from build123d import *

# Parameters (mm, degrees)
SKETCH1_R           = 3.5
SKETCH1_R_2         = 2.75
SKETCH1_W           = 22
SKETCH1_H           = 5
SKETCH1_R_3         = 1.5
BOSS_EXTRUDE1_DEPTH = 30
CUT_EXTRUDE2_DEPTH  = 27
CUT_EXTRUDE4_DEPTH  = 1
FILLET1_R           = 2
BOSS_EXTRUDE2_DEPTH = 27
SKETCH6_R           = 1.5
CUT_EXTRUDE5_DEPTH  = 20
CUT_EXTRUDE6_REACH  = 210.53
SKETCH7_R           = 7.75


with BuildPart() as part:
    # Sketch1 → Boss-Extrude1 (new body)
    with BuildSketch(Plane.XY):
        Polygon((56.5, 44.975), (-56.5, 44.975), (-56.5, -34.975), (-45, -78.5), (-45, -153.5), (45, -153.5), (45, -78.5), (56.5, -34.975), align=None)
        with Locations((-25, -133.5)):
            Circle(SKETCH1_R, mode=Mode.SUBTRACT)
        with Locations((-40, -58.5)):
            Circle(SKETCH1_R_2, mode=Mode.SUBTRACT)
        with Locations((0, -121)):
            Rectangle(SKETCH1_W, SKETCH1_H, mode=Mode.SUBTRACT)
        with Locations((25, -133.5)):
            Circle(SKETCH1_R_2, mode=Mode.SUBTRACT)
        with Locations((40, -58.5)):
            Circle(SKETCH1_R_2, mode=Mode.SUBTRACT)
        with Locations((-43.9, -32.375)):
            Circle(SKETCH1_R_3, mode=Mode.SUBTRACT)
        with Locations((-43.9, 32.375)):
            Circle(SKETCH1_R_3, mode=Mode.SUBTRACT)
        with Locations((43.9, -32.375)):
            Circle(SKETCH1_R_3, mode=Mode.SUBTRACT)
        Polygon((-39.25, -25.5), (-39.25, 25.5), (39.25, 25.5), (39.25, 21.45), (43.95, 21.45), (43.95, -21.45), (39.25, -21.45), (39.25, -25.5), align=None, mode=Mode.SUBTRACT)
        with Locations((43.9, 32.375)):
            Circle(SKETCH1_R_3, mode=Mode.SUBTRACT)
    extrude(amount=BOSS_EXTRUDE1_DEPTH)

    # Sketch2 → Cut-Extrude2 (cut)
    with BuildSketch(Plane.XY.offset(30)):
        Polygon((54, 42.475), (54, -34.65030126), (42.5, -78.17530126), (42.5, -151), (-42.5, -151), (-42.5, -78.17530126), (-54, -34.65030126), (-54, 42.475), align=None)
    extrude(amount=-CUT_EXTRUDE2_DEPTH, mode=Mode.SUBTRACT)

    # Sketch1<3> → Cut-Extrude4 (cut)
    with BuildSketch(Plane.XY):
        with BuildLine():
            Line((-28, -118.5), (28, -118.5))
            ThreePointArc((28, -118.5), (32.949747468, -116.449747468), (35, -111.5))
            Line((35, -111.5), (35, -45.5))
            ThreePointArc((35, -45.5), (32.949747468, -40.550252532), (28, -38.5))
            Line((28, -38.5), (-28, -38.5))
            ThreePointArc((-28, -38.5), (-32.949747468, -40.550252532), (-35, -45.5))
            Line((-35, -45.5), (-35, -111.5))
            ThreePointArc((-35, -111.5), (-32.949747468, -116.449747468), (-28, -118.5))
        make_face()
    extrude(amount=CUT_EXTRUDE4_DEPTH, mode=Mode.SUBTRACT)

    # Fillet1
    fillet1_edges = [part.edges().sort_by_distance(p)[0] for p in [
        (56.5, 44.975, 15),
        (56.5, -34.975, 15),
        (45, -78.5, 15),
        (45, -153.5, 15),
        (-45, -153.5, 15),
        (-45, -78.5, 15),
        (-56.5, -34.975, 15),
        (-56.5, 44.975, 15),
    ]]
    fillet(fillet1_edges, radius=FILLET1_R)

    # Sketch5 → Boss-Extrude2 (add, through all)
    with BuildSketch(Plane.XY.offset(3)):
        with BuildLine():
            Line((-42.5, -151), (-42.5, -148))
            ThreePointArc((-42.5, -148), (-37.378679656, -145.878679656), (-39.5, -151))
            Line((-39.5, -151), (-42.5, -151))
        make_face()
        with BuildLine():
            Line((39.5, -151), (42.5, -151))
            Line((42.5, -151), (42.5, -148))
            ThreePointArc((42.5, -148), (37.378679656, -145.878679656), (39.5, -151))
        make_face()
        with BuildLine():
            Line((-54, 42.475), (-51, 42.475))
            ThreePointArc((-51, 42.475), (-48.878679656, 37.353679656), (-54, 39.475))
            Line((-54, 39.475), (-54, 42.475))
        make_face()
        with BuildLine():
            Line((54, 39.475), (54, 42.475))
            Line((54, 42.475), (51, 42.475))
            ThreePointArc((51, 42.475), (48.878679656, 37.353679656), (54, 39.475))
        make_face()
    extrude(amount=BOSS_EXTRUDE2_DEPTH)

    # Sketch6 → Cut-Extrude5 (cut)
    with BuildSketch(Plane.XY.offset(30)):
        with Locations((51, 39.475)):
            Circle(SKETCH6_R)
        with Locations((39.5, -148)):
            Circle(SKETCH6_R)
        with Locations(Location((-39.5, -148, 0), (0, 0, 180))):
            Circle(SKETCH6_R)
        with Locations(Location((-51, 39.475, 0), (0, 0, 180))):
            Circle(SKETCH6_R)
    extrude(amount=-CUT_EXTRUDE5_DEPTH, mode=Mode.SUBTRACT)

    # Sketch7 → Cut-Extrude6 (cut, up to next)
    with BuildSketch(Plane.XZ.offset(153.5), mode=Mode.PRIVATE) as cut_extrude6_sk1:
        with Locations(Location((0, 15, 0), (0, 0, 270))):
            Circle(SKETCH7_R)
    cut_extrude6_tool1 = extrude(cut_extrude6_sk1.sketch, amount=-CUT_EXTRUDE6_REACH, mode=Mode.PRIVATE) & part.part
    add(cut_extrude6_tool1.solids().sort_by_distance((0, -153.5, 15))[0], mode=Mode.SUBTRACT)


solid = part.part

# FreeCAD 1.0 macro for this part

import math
import FreeCAD as App
import Part
import Sketcher


def edges_at(feature, points):
    """Names of the edges that pass closest to the given points."""
    edges = feature.Shape.Edges
    near = lambda p: min(range(len(edges)), key=lambda i: edges[i].distToShape(Part.Vertex(*p))[0])
    return sorted({f"Edge{near(p) + 1}" for p in points})

doc = App.newDocument("Part")
body = doc.addObject("PartDesign::Body", "Body")

sketch1 = body.newObject("Sketcher::SketchObject", "Sketch")
sketch1.AttachmentSupport = (doc.getObject("XY_Plane"), [""])
sketch1.MapMode = "FlatFace"
sketch1.addGeometry(Part.LineSegment(App.Vector(56.5, 45, 0), App.Vector(-56.5, 45, 0)), False)
sketch1.addGeometry(Part.LineSegment(App.Vector(-56.5, 45, 0), App.Vector(-56.5, -35, 0)), False)
sketch1.addGeometry(Part.LineSegment(App.Vector(-56.5, -35, 0), App.Vector(-45, -78.5, 0)), False)
sketch1.addGeometry(Part.LineSegment(App.Vector(-45, -78.5, 0), App.Vector(-45, -153.5, 0)), False)
sketch1.addGeometry(Part.LineSegment(App.Vector(-45, -153.5, 0), App.Vector(45, -153.5, 0)), False)
sketch1.addGeometry(Part.LineSegment(App.Vector(45, -153.5, 0), App.Vector(45, -78.5, 0)), False)
sketch1.addGeometry(Part.LineSegment(App.Vector(45, -78.5, 0), App.Vector(56.5, -35, 0)), False)
sketch1.addGeometry(Part.LineSegment(App.Vector(56.5, -35, 0), App.Vector(56.5, 45, 0)), False)
sketch1.addGeometry(Part.Circle(App.Vector(-25, -133.5, 0), App.Vector(0, 0, 1), 3.5), False)
sketch1.addGeometry(Part.Circle(App.Vector(-40, -58.5, 0), App.Vector(0, 0, 1), 2.8), False)
sketch1.addGeometry(Part.LineSegment(App.Vector(11, -123.5, 0), App.Vector(-11, -123.5, 0)), False)
sketch1.addGeometry(Part.LineSegment(App.Vector(-11, -123.5, 0), App.Vector(-11, -118.5, 0)), False)
sketch1.addGeometry(Part.LineSegment(App.Vector(-11, -118.5, 0), App.Vector(11, -118.5, 0)), False)
sketch1.addGeometry(Part.LineSegment(App.Vector(11, -118.5, 0), App.Vector(11, -123.5, 0)), False)
sketch1.addGeometry(Part.Circle(App.Vector(25, -133.5, 0), App.Vector(0, 0, 1), 2.8), False)
sketch1.addGeometry(Part.Circle(App.Vector(40, -58.5, 0), App.Vector(0, 0, 1), 2.8), False)
sketch1.addGeometry(Part.Circle(App.Vector(-43.9, -32.4, 0), App.Vector(0, 0, 1), 1.5), False)
sketch1.addGeometry(Part.Circle(App.Vector(-43.9, 32.4, 0), App.Vector(0, 0, 1), 1.5), False)
sketch1.addGeometry(Part.Circle(App.Vector(43.9, -32.4, 0), App.Vector(0, 0, 1), 1.5), False)
sketch1.addGeometry(Part.LineSegment(App.Vector(39.2, -25.5, 0), App.Vector(-39.2, -25.5, 0)), False)
sketch1.addGeometry(Part.LineSegment(App.Vector(-39.2, -25.5, 0), App.Vector(-39.2, 25.5, 0)), False)
sketch1.addGeometry(Part.LineSegment(App.Vector(-39.2, 25.5, 0), App.Vector(39.2, 25.5, 0)), False)
sketch1.addGeometry(Part.LineSegment(App.Vector(39.2, 25.5, 0), App.Vector(39.2, 21.4, 0)), False)
sketch1.addGeometry(Part.LineSegment(App.Vector(39.2, 21.4, 0), App.Vector(44, 21.4, 0)), False)
sketch1.addGeometry(Part.LineSegment(App.Vector(44, 21.4, 0), App.Vector(44, -21.4, 0)), False)
sketch1.addGeometry(Part.LineSegment(App.Vector(44, -21.4, 0), App.Vector(39.2, -21.4, 0)), False)
sketch1.addGeometry(Part.LineSegment(App.Vector(39.2, -21.4, 0), App.Vector(39.2, -25.5, 0)), False)
sketch1.addGeometry(Part.Circle(App.Vector(43.9, 32.4, 0), App.Vector(0, 0, 1), 1.5), False)
sketch1.addConstraint(Sketcher.Constraint("Coincident", 0, 2, 1, 1))
sketch1.addConstraint(Sketcher.Constraint("Coincident", 1, 2, 2, 1))
sketch1.addConstraint(Sketcher.Constraint("Coincident", 2, 2, 3, 1))
sketch1.addConstraint(Sketcher.Constraint("Coincident", 3, 2, 4, 1))
sketch1.addConstraint(Sketcher.Constraint("Coincident", 4, 2, 5, 1))
sketch1.addConstraint(Sketcher.Constraint("Coincident", 5, 2, 6, 1))
sketch1.addConstraint(Sketcher.Constraint("Coincident", 6, 2, 7, 1))
sketch1.addConstraint(Sketcher.Constraint("Coincident", 7, 2, 0, 1))
sketch1.addConstraint(Sketcher.Constraint("Coincident", 10, 2, 11, 1))
sketch1.addConstraint(Sketcher.Constraint("Coincident", 11, 2, 12, 1))
sketch1.addConstraint(Sketcher.Constraint("Coincident", 12, 2, 13, 1))
sketch1.addConstraint(Sketcher.Constraint("Coincident", 13, 2, 10, 1))
sketch1.addConstraint(Sketcher.Constraint("Coincident", 19, 2, 20, 1))
sketch1.addConstraint(Sketcher.Constraint("Coincident", 20, 2, 21, 1))
sketch1.addConstraint(Sketcher.Constraint("Coincident", 21, 2, 22, 1))
sketch1.addConstraint(Sketcher.Constraint("Coincident", 22, 2, 23, 1))
sketch1.addConstraint(Sketcher.Constraint("Coincident", 23, 2, 24, 1))
sketch1.addConstraint(Sketcher.Constraint("Coincident", 24, 2, 25, 1))
sketch1.addConstraint(Sketcher.Constraint("Coincident", 25, 2, 26, 1))
sketch1.addConstraint(Sketcher.Constraint("Coincident", 26, 2, 19, 1))
sketch1.addConstraint(Sketcher.Constraint("Horizontal", 0))
sketch1.addConstraint(Sketcher.Constraint("Vertical", 1))
sketch1.addConstraint(Sketcher.Constraint("Vertical", 3))
sketch1.addConstraint(Sketcher.Constraint("Horizontal", 4))
sketch1.addConstraint(Sketcher.Constraint("Vertical", 5))
sketch1.addConstraint(Sketcher.Constraint("Vertical", 7))
sketch1.addConstraint(Sketcher.Constraint("Horizontal", 10))
sketch1.addConstraint(Sketcher.Constraint("Vertical", 11))
sketch1.addConstraint(Sketcher.Constraint("Horizontal", 12))
sketch1.addConstraint(Sketcher.Constraint("Vertical", 13))
sketch1.addConstraint(Sketcher.Constraint("Horizontal", 19))
sketch1.addConstraint(Sketcher.Constraint("Vertical", 20))
sketch1.addConstraint(Sketcher.Constraint("Horizontal", 21))
sketch1.addConstraint(Sketcher.Constraint("Vertical", 22))
sketch1.addConstraint(Sketcher.Constraint("Horizontal", 23))
sketch1.addConstraint(Sketcher.Constraint("Vertical", 24))
sketch1.addConstraint(Sketcher.Constraint("Horizontal", 25))
sketch1.addConstraint(Sketcher.Constraint("Vertical", 26))
sketch1.addConstraint(Sketcher.Constraint("Equal", 9, 14))
sketch1.addConstraint(Sketcher.Constraint("Equal", 14, 15))
sketch1.addConstraint(Sketcher.Constraint("Equal", 16, 17))
sketch1.addConstraint(Sketcher.Constraint("Equal", 17, 18))
sketch1.addConstraint(Sketcher.Constraint("Equal", 18, 27))
sketch1.addConstraint(Sketcher.Constraint("Symmetric", 17, 3, 18, 3, -1, 1))
sketch1.addConstraint(Sketcher.Constraint("Symmetric", 16, 3, 27, 3, -1, 1))
sketch1.addConstraint(Sketcher.Constraint("Symmetric", 19, 2, 21, 2, -1, 1))
sketch1.addConstraint(Sketcher.Constraint("Symmetric", 8, 3, 14, 3, -2))
sketch1.addConstraint(Sketcher.Constraint("Symmetric", 9, 3, 15, 3, -2))
sketch1.addConstraint(Sketcher.Constraint("Symmetric", 16, 3, 18, 3, -2))
sketch1.addConstraint(Sketcher.Constraint("Symmetric", 2, 2, 5, 2, -2))
sketch1.addConstraint(Sketcher.Constraint("Symmetric", 1, 2, 6, 2, -2))
sketch1.addConstraint(Sketcher.Constraint("Symmetric", 22, 2, 25, 2, -1))
sketch1.addConstraint(Sketcher.Constraint("Diameter", 8, 7.0))
sketch1.addConstraint(Sketcher.Constraint("Diameter", 16, 3.0))
sketch1.addConstraint(Sketcher.Constraint("Diameter", 9, 5.5))
sketch1.addConstraint(Sketcher.Constraint("DistanceX", 0, 2, 0, 1, 113.0))
sketch1.addConstraint(Sketcher.Constraint("DistanceX", 4, 1, 4, 2, 90.0))
sketch1.addConstraint(Sketcher.Constraint("DistanceX", 10, 2, 10, 1, 22.0))
sketch1.addConstraint(Sketcher.Constraint("DistanceY", 3, 2, 3, 1, 75.0))
sketch1.addConstraint(Sketcher.Constraint("DistanceY", 11, 1, 11, 2, 5.0))
sketch1.addConstraint(Sketcher.Constraint("DistanceY", 20, 1, 20, 2, 51.0))
sketch1.addConstraint(Sketcher.Constraint("DistanceX", 19, 2, 19, 1, 78.5))
sketch1.addConstraint(Sketcher.Constraint("DistanceX", 23, 1, 23, 2, 4.7))
sketch1.addConstraint(Sketcher.Constraint("DistanceY", 24, 2, 24, 1, 42.9))
sketch1.addConstraint(Sketcher.Constraint("DistanceX", 8, 3, -1, 1, 25.0))
sketch1.addConstraint(Sketcher.Constraint("DistanceX", 9, 3, -1, 1, 40.0))
sketch1.addConstraint(Sketcher.Constraint("DistanceX", 10, 2, -1, 1, 11.0))
sketch1.addConstraint(Sketcher.Constraint("DistanceY", 8, 3, 9, 3, 75.0))
sketch1.addConstraint(Sketcher.Constraint("DistanceY", 2, 2, 9, 3, 20.0))
sketch1.addConstraint(Sketcher.Constraint("DistanceY", 8, 3, 10, 2, 10.0))
sketch1.addConstraint(Sketcher.Constraint("DistanceY", 9, 3, 19, 2, 33.0))
sketch1.addConstraint(Sketcher.Constraint("DistanceY", 1, 2, 1, 1, 79.95))
sketch1.addConstraint(Sketcher.Constraint("DistanceX", 16, 3, -1, 1, 43.9))
sketch1.addConstraint(Sketcher.Constraint("DistanceY", 17, 3, 0, 2, 12.6))
sketch1.addConstraint(Sketcher.Constraint("DistanceY", 1, 2, 16, 3, 2.6))
pad1 = body.newObject("PartDesign::Pad", "Pad")
pad1.Profile = sketch1
pad1.Length = 30

sketch2 = body.newObject("Sketcher::SketchObject", "Sketch001")
sketch2.AttachmentSupport = (doc.getObject("XY_Plane"), [""])
sketch2.MapMode = "FlatFace"
sketch2.AttachmentOffset = App.Placement(App.Vector(0, 0, 30), App.Rotation())
sketch2.addGeometry(Part.LineSegment(App.Vector(54, -35, 0), App.Vector(54, 42, 0)), False)
sketch2.addGeometry(Part.LineSegment(App.Vector(54, 42, 0), App.Vector(-54, 42, 0)), False)
sketch2.addGeometry(Part.LineSegment(App.Vector(-54, 42, 0), App.Vector(-54, -35, 0)), False)
sketch2.addGeometry(Part.LineSegment(App.Vector(-54, -35, 0), App.Vector(-42, -78, 0)), False)
sketch2.addGeometry(Part.LineSegment(App.Vector(-42, -78, 0), App.Vector(-42, -151, 0)), False)
sketch2.addGeometry(Part.LineSegment(App.Vector(-42, -151, 0), App.Vector(42, -151, 0)), False)
sketch2.addGeometry(Part.LineSegment(App.Vector(42, -151, 0), App.Vector(42, -78, 0)), False)
sketch2.addGeometry(Part.LineSegment(App.Vector(42, -78, 0), App.Vector(54, -35, 0)), False)
sketch2.addConstraint(Sketcher.Constraint("Coincident", 0, 2, 1, 1))
sketch2.addConstraint(Sketcher.Constraint("Coincident", 1, 2, 2, 1))
sketch2.addConstraint(Sketcher.Constraint("Coincident", 2, 2, 3, 1))
sketch2.addConstraint(Sketcher.Constraint("Coincident", 3, 2, 4, 1))
sketch2.addConstraint(Sketcher.Constraint("Coincident", 4, 2, 5, 1))
sketch2.addConstraint(Sketcher.Constraint("Coincident", 5, 2, 6, 1))
sketch2.addConstraint(Sketcher.Constraint("Coincident", 6, 2, 7, 1))
sketch2.addConstraint(Sketcher.Constraint("Coincident", 7, 2, 0, 1))
sketch2.addConstraint(Sketcher.Constraint("Vertical", 0))
sketch2.addConstraint(Sketcher.Constraint("Horizontal", 1))
sketch2.addConstraint(Sketcher.Constraint("Vertical", 2))
sketch2.addConstraint(Sketcher.Constraint("Vertical", 4))
sketch2.addConstraint(Sketcher.Constraint("Horizontal", 5))
sketch2.addConstraint(Sketcher.Constraint("Vertical", 6))
sketch2.addConstraint(Sketcher.Constraint("Symmetric", 3, 2, 6, 2, -2))
sketch2.addConstraint(Sketcher.Constraint("Symmetric", 2, 2, 7, 2, -2))
sketch2.addConstraint(Sketcher.Constraint("DistanceX", 1, 2, 1, 1, 108.0))
sketch2.addConstraint(Sketcher.Constraint("DistanceX", 5, 1, 5, 2, 85.0))
sketch2.addConstraint(Sketcher.Constraint("DistanceY", 4, 2, -1, 1, 151.0))
sketch2.addConstraint(Sketcher.Constraint("DistanceY", 0, 1, 0, 2, 77.125301))
sketch2.addConstraint(Sketcher.Constraint("DistanceY", 4, 2, 4, 1, 72.824699))
sketch2.addConstraint(Sketcher.Constraint("DistanceY", -1, 1, 0, 2, 42.475))
pocket1 = body.newObject("PartDesign::Pocket", "Pocket")
pocket1.Profile = sketch2
pocket1.Length = 27

sketch3 = body.newObject("Sketcher::SketchObject", "Sketch002")
sketch3.AttachmentSupport = (doc.getObject("XY_Plane"), [""])
sketch3.MapMode = "FlatFace"
sketch3.addGeometry(Part.LineSegment(App.Vector(-28, -118, 0), App.Vector(28, -118, 0)), False)
sketch3.addGeometry(Part.ArcOfCircle(Part.Circle(App.Vector(28, -111, 0), App.Vector(0, 0, 1), 7), math.radians(-90), math.radians(0)), False)
sketch3.addGeometry(Part.LineSegment(App.Vector(35, -112, 0), App.Vector(35, -46, 0)), False)
sketch3.addGeometry(Part.ArcOfCircle(Part.Circle(App.Vector(28, -46, 0), App.Vector(0, 0, 1), 7), math.radians(0), math.radians(90)), False)
sketch3.addGeometry(Part.LineSegment(App.Vector(28, -38, 0), App.Vector(-28, -38, 0)), False)
sketch3.addGeometry(Part.ArcOfCircle(Part.Circle(App.Vector(-28, -46, 0), App.Vector(0, 0, 1), 7), math.radians(90), math.radians(180)), False)
sketch3.addGeometry(Part.LineSegment(App.Vector(-35, -46, 0), App.Vector(-35, -112, 0)), False)
sketch3.addGeometry(Part.ArcOfCircle(Part.Circle(App.Vector(-28, -111, 0), App.Vector(0, 0, 1), 7), math.radians(-180), math.radians(-90)), False)
sketch3.addConstraint(Sketcher.Constraint("Tangent", 0, 2, 1, 1))
sketch3.addConstraint(Sketcher.Constraint("Tangent", 1, 2, 2, 1))
sketch3.addConstraint(Sketcher.Constraint("Tangent", 2, 2, 3, 1))
sketch3.addConstraint(Sketcher.Constraint("Tangent", 3, 2, 4, 1))
sketch3.addConstraint(Sketcher.Constraint("Tangent", 4, 2, 5, 1))
sketch3.addConstraint(Sketcher.Constraint("Tangent", 5, 2, 6, 1))
sketch3.addConstraint(Sketcher.Constraint("Tangent", 6, 2, 7, 1))
sketch3.addConstraint(Sketcher.Constraint("Tangent", 7, 2, 0, 1))
sketch3.addConstraint(Sketcher.Constraint("Horizontal", 0))
sketch3.addConstraint(Sketcher.Constraint("Vertical", 2))
sketch3.addConstraint(Sketcher.Constraint("Horizontal", 4))
sketch3.addConstraint(Sketcher.Constraint("Vertical", 6))
sketch3.addConstraint(Sketcher.Constraint("Equal", 1, 3))
sketch3.addConstraint(Sketcher.Constraint("Equal", 3, 5))
sketch3.addConstraint(Sketcher.Constraint("Equal", 5, 7))
sketch3.addConstraint(Sketcher.Constraint("Radius", 1, 7.0))
sketch3.addConstraint(Sketcher.Constraint("DistanceX", 0, 1, 0, 2, 56.0))
sketch3.addConstraint(Sketcher.Constraint("DistanceY", 2, 1, 2, 2, 66.0))
sketch3.addConstraint(Sketcher.Constraint("DistanceX", -1, 1, 1, 3, 28.0))
sketch3.addConstraint(Sketcher.Constraint("DistanceY", 1, 3, -1, 1, 111.5))
pocket2 = body.newObject("PartDesign::Pocket", "Pocket001")
pocket2.Profile = sketch3
pocket2.Length = 1
pocket2.Reversed = True
doc.recompute()

fillet = body.newObject("PartDesign::Fillet", "Fillet")
fillet.Base = (pocket2, edges_at(pocket2, [
    (56.5, 44.975, 15),
    (56.5, -34.975, 15),
    (45, -78.5, 15),
    (45, -153.5, 15),
    (-45, -153.5, 15),
    (-45, -78.5, 15),
    (-56.5, -34.975, 15),
    (-56.5, 44.975, 15),
]))
fillet.Radius = 2

sketch4 = body.newObject("Sketcher::SketchObject", "Sketch003")
sketch4.AttachmentSupport = (doc.getObject("XY_Plane"), [""])
sketch4.MapMode = "FlatFace"
sketch4.AttachmentOffset = App.Placement(App.Vector(0, 0, 3), App.Rotation())
sketch4.addGeometry(Part.LineSegment(App.Vector(-42.5, -148, 0), App.Vector(-42.5, -151, 0)), False)
sketch4.addGeometry(Part.LineSegment(App.Vector(-42.5, -151, 0), App.Vector(-39.5, -151, 0)), False)
sketch4.addGeometry(Part.ArcOfCircle(Part.Circle(App.Vector(-39.5, -148, 0), App.Vector(0, 0, 1), 3), math.radians(-90), math.radians(180)), False)
sketch4.addGeometry(Part.LineSegment(App.Vector(39.5, -151, 0), App.Vector(42.5, -151, 0)), False)
sketch4.addGeometry(Part.LineSegment(App.Vector(42.5, -151, 0), App.Vector(42.5, -148, 0)), False)
sketch4.addGeometry(Part.ArcOfCircle(Part.Circle(App.Vector(39.5, -148, 0), App.Vector(0, 0, 1), 3), math.radians(0), math.radians(270)), False)
sketch4.addGeometry(Part.LineSegment(App.Vector(-51, 42.5, 0), App.Vector(-54, 42.5, 0)), False)
sketch4.addGeometry(Part.LineSegment(App.Vector(-54, 42.5, 0), App.Vector(-54, 39.5, 0)), False)
sketch4.addGeometry(Part.ArcOfCircle(Part.Circle(App.Vector(-51, 39.5, 0), App.Vector(0, 0, 1), 3), math.radians(180), math.radians(450)), False)
sketch4.addGeometry(Part.LineSegment(App.Vector(54, 39.5, 0), App.Vector(54, 42.5, 0)), False)
sketch4.addGeometry(Part.LineSegment(App.Vector(54, 42.5, 0), App.Vector(51, 42.5, 0)), False)
sketch4.addGeometry(Part.ArcOfCircle(Part.Circle(App.Vector(51, 39.5, 0), App.Vector(0, 0, 1), 3), math.radians(90), math.radians(360)), False)
sketch4.addConstraint(Sketcher.Constraint("Coincident", 0, 2, 1, 1))
sketch4.addConstraint(Sketcher.Constraint("Tangent", 1, 2, 2, 1))
sketch4.addConstraint(Sketcher.Constraint("Tangent", 2, 2, 0, 1))
sketch4.addConstraint(Sketcher.Constraint("Coincident", 3, 2, 4, 1))
sketch4.addConstraint(Sketcher.Constraint("Tangent", 4, 2, 5, 1))
sketch4.addConstraint(Sketcher.Constraint("Tangent", 5, 2, 3, 1))
sketch4.addConstraint(Sketcher.Constraint("Coincident", 6, 2, 7, 1))
sketch4.addConstraint(Sketcher.Constraint("Tangent", 7, 2, 8, 1))
sketch4.addConstraint(Sketcher.Constraint("Tangent", 8, 2, 6, 1))
sketch4.addConstraint(Sketcher.Constraint("Coincident", 9, 2, 10, 1))
sketch4.addConstraint(Sketcher.Constraint("Tangent", 10, 2, 11, 1))
sketch4.addConstraint(Sketcher.Constraint("Tangent", 11, 2, 9, 1))
sketch4.addConstraint(Sketcher.Constraint("Vertical", 0))
sketch4.addConstraint(Sketcher.Constraint("Horizontal", 1))
sketch4.addConstraint(Sketcher.Constraint("Horizontal", 3))
sketch4.addConstraint(Sketcher.Constraint("Vertical", 4))
sketch4.addConstraint(Sketcher.Constraint("Horizontal", 6))
sketch4.addConstraint(Sketcher.Constraint("Vertical", 7))
sketch4.addConstraint(Sketcher.Constraint("Vertical", 9))
sketch4.addConstraint(Sketcher.Constraint("Horizontal", 10))
sketch4.addConstraint(Sketcher.Constraint("Equal", 2, 5))
sketch4.addConstraint(Sketcher.Constraint("Equal", 5, 8))
sketch4.addConstraint(Sketcher.Constraint("Equal", 8, 11))
sketch4.addConstraint(Sketcher.Constraint("Symmetric", 2, 3, 5, 3, -2))
sketch4.addConstraint(Sketcher.Constraint("Symmetric", 8, 3, 11, 3, -2))
sketch4.addConstraint(Sketcher.Constraint("Radius", 2, 3.0))
sketch4.addConstraint(Sketcher.Constraint("DistanceY", 2, 3, -1, 1, 148.0))
sketch4.addConstraint(Sketcher.Constraint("DistanceX", 8, 3, -1, 1, 51.0))
sketch4.addConstraint(Sketcher.Constraint("DistanceX", 2, 3, 5, 3, 79.0))
sketch4.addConstraint(Sketcher.Constraint("DistanceY", -1, 1, 8, 3, 39.475))
pad2 = body.newObject("PartDesign::Pad", "Pad001")
pad2.Profile = sketch4
pad2.Length = 27

sketch5 = body.newObject("Sketcher::SketchObject", "Sketch004")
sketch5.AttachmentSupport = (doc.getObject("XY_Plane"), [""])
sketch5.MapMode = "FlatFace"
sketch5.AttachmentOffset = App.Placement(App.Vector(0, 0, 30), App.Rotation())
sketch5.addGeometry(Part.Circle(App.Vector(51, 39.5, 0), App.Vector(0, 0, 1), 1.5), False)
sketch5.addGeometry(Part.Circle(App.Vector(39.5, -148, 0), App.Vector(0, 0, 1), 1.5), False)
sketch5.addGeometry(Part.Circle(App.Vector(-39.5, -148, 0), App.Vector(0, 0, 1), 1.5), False)
sketch5.addGeometry(Part.Circle(App.Vector(-51, 39.5, 0), App.Vector(0, 0, 1), 1.5), False)
sketch5.addConstraint(Sketcher.Constraint("Equal", 0, 1))
sketch5.addConstraint(Sketcher.Constraint("Equal", 1, 2))
sketch5.addConstraint(Sketcher.Constraint("Equal", 2, 3))
sketch5.addConstraint(Sketcher.Constraint("Symmetric", 1, 3, 2, 3, -2))
sketch5.addConstraint(Sketcher.Constraint("Symmetric", 0, 3, 3, 3, -2))
sketch5.addConstraint(Sketcher.Constraint("Diameter", 0, 3.0))
sketch5.addConstraint(Sketcher.Constraint("DistanceX", -1, 1, 0, 3, 51.0))
sketch5.addConstraint(Sketcher.Constraint("DistanceY", 1, 3, -1, 1, 148.0))
sketch5.addConstraint(Sketcher.Constraint("DistanceX", 2, 3, 1, 3, 79.0))
sketch5.addConstraint(Sketcher.Constraint("DistanceY", -1, 1, 0, 3, 39.475))
pocket3 = body.newObject("PartDesign::Pocket", "Pocket002")
pocket3.Profile = sketch5
pocket3.Length = 20

sketch6 = body.newObject("Sketcher::SketchObject", "Sketch005")
sketch6.AttachmentSupport = (doc.getObject("XZ_Plane"), [""])
sketch6.MapMode = "FlatFace"
sketch6.AttachmentOffset = App.Placement(App.Vector(0, 0, 153.5), App.Rotation())
sketch6.addGeometry(Part.Circle(App.Vector(0, 15, 0), App.Vector(0, 0, 1), 8), False)
sketch6.addConstraint(Sketcher.Constraint("PointOnObject", 0, 3, -2))
sketch6.addConstraint(Sketcher.Constraint("Diameter", 0, 15.5))
sketch6.addConstraint(Sketcher.Constraint("DistanceY", -1, 1, 0, 3, 15.0))
pocket4 = body.newObject("PartDesign::Pocket", "Pocket003")
pocket4.Profile = sketch6
pocket4.Type = "UpToFirst"

doc.recompute()
